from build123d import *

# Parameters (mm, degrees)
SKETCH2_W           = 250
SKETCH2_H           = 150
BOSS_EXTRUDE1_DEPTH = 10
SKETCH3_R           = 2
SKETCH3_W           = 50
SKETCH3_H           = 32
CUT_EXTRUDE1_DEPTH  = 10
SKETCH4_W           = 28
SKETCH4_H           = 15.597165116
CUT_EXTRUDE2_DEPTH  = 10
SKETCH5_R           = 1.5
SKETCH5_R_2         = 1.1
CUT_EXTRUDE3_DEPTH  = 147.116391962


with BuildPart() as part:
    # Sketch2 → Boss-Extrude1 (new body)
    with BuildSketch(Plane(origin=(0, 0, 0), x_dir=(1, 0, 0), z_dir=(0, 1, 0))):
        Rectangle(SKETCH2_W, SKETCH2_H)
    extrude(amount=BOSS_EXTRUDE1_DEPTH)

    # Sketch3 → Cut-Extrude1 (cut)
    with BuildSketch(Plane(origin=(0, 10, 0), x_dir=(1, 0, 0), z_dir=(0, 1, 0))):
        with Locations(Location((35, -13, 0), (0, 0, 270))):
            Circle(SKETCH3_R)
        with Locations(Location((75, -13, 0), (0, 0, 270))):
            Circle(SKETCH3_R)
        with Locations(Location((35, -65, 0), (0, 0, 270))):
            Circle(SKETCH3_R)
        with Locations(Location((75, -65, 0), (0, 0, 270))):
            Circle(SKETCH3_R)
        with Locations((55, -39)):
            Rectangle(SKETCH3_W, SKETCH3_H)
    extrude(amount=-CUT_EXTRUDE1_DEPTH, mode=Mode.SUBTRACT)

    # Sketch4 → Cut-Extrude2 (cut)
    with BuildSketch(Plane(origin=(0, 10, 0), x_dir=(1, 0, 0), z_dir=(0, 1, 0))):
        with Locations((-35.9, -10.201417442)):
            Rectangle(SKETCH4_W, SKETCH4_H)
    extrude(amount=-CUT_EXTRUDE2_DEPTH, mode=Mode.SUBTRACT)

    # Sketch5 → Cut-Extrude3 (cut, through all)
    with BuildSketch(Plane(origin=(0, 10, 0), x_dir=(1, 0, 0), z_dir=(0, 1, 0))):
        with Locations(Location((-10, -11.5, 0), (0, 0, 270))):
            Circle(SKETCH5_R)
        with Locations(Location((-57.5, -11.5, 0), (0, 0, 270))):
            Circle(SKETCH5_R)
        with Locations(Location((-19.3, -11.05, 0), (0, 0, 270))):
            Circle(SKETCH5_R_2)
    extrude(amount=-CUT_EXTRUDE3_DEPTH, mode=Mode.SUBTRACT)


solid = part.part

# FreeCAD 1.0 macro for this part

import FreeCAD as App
import Part
import Sketcher

V = App.Vector


def add_polygon(sketch, points):
    """Adds a closed chain of lines whose ends are joined by coincident constraints."""
    first, n = sketch.GeometryCount, len(points)
    for a, b in zip(points, points[1:] + points[:1]):
        sketch.addGeometry(Part.LineSegment(App.Vector(*a, 0), App.Vector(*b, 0)), False)
    for i in range(n):
        sketch.addConstraint(Sketcher.Constraint("Coincident", first + i, 2, first + (i + 1) % n, 1))

doc = App.newDocument("Part")
params = doc.addObject("Spreadsheet::Sheet", "Params")
for row, (alias, value) in enumerate([
    ("sketch1_width", "250 mm"),
    ("sketch1_height", "150 mm"),
    ("pad1_length", "10 mm"),
    ("sketch2_diameter", "4 mm"),
    ("sketch2_width", "50 mm"),
    ("sketch2_height", "32 mm"),
    ("pocket1_length", "10 mm"),
    ("sketch3_width", "28 mm"),
    ("pocket2_length", "10 mm"),
    ("sketch4_diameter", "3 mm"),
    ("sketch4_diameter2", "2.2 mm"),
], start=1):
    params.set(f"A{row}", alias)
    params.set(f"B{row}", "=" + value)
    params.setAlias(f"B{row}", alias)

body = doc.addObject("PartDesign::Body", "Body")

# Sketch on XZ plane
sketch1 = doc.addObject("Sketcher::SketchObject", "Sketch")
body.addObject(sketch1)
sketch1.AttachmentSupport = (doc.XZ_Plane, [""])
sketch1.MapMode = "FlatFace"
add_polygon(sketch1, [(-125, -75), (-125, 75), (125, 75), (125, -75)])  # lines 0-3
sketch1.addConstraint(Sketcher.Constraint("Vertical", 0))
sketch1.addConstraint(Sketcher.Constraint("Horizontal", 1))
sketch1.addConstraint(Sketcher.Constraint("Vertical", 2))
sketch1.addConstraint(Sketcher.Constraint("Horizontal", 3))
sketch1.addConstraint(Sketcher.Constraint("Symmetric", 0, 2, 2, 2, -1, 1))
sketch1.addConstraint(Sketcher.Constraint("DistanceX", 1, 1, 1, 2, 250.0))
sketch1.addConstraint(Sketcher.Constraint("DistanceY", 0, 1, 0, 2, 150.0))
sketch1.setExpression("Constraints[9]", "Params.sketch1_width")
sketch1.setExpression("Constraints[10]", "Params.sketch1_height")
pad1 = doc.addObject("PartDesign::Pad", "Pad")
body.addObject(pad1)
pad1.Profile = sketch1
pad1.setExpression("Length", "Params.pad1_length")
pad1.Reversed = True

# Sketch on XZ plane
sketch2 = doc.addObject("Sketcher::SketchObject", "Sketch001")
body.addObject(sketch2)
sketch2.AttachmentSupport = (doc.XZ_Plane, [""])
sketch2.MapMode = "FlatFace"
sketch2.AttachmentOffset = App.Placement(V(0, 0, -10), App.Rotation())
sketch2.addGeometry(Part.Circle(V(35, 13, 0), V(0, 0, 1), 2), False)  # 0
sketch2.addGeometry(Part.Circle(V(75, 13, 0), V(0, 0, 1), 2), False)  # 1
sketch2.addGeometry(Part.Circle(V(35, 65, 0), V(0, 0, 1), 2), False)  # 2
sketch2.addGeometry(Part.Circle(V(75, 65, 0), V(0, 0, 1), 2), False)  # 3
add_polygon(sketch2, [(30, 23), (30, 55), (80, 55), (80, 23)])  # lines 4-7
sketch2.addConstraint(Sketcher.Constraint("Vertical", 4))
sketch2.addConstraint(Sketcher.Constraint("Horizontal", 5))
sketch2.addConstraint(Sketcher.Constraint("Vertical", 6))
sketch2.addConstraint(Sketcher.Constraint("Horizontal", 7))
sketch2.addConstraint(Sketcher.Constraint("Equal", 0, 1))
sketch2.addConstraint(Sketcher.Constraint("Equal", 1, 2))
sketch2.addConstraint(Sketcher.Constraint("Equal", 2, 3))
sketch2.addConstraint(Sketcher.Constraint("Horizontal", 0, 3, 1, 3))
sketch2.addConstraint(Sketcher.Constraint("Horizontal", 2, 3, 3, 3))
sketch2.addConstraint(Sketcher.Constraint("Vertical", 0, 3, 2, 3))
sketch2.addConstraint(Sketcher.Constraint("Vertical", 1, 3, 3, 3))
sketch2.addConstraint(Sketcher.Constraint("Diameter", 0, 4.0))
sketch2.addConstraint(Sketcher.Constraint("DistanceX", 5, 1, 5, 2, 50.0))
sketch2.addConstraint(Sketcher.Constraint("DistanceY", 4, 1, 4, 2, 32.0))
sketch2.addConstraint(Sketcher.Constraint("DistanceX", -1, 1, 0, 3, 35.0))
sketch2.addConstraint(Sketcher.Constraint("DistanceY", -1, 1, 0, 3, 13.0))
sketch2.addConstraint(Sketcher.Constraint("DistanceX", -1, 1, 1, 3, 75.0))
sketch2.addConstraint(Sketcher.Constraint("DistanceY", -1, 1, 2, 3, 65.0))
sketch2.addConstraint(Sketcher.Constraint("DistanceX", -1, 1, 4, 2, 30.0))
sketch2.addConstraint(Sketcher.Constraint("DistanceY", -1, 1, 4, 2, 55.0))
sketch2.setExpression("Constraints[15]", "Params.sketch2_diameter")
sketch2.setExpression("Constraints[16]", "Params.sketch2_width")
sketch2.setExpression("Constraints[17]", "Params.sketch2_height")
pocket1 = doc.addObject("PartDesign::Pocket", "Pocket")
body.addObject(pocket1)
pocket1.Profile = sketch2
pocket1.setExpression("Length", "Params.pocket1_length")
pocket1.Reversed = True

# Sketch on XZ plane
sketch3 = doc.addObject("Sketcher::SketchObject", "Sketch002")
body.addObject(sketch3)
sketch3.AttachmentSupport = (doc.XZ_Plane, [""])
sketch3.MapMode = "FlatFace"
sketch3.AttachmentOffset = App.Placement(V(0, 0, -10), App.Rotation())
add_polygon(sketch3, [(-50, 2), (-50, 18), (-22, 18), (-22, 2)])  # lines 0-3
sketch3.addConstraint(Sketcher.Constraint("Vertical", 0))
sketch3.addConstraint(Sketcher.Constraint("Horizontal", 1))
sketch3.addConstraint(Sketcher.Constraint("Vertical", 2))
sketch3.addConstraint(Sketcher.Constraint("Horizontal", 3))
sketch3.addConstraint(Sketcher.Constraint("DistanceX", 1, 1, 1, 2, 28.0))
sketch3.addConstraint(Sketcher.Constraint("DistanceY", -1, 1, 0, 2, 18.0))
sketch3.addConstraint(Sketcher.Constraint("DistanceX", 0, 2, -1, 1, 49.9))
sketch3.addConstraint(Sketcher.Constraint("DistanceY", 0, 1, 0, 2, 15.597165))
sketch3.setExpression("Constraints[8]", "Params.sketch3_width")
pocket2 = doc.addObject("PartDesign::Pocket", "Pocket001")
body.addObject(pocket2)
pocket2.Profile = sketch3
pocket2.setExpression("Length", "Params.pocket2_length")
pocket2.Reversed = True

# Sketch on XZ plane
sketch4 = doc.addObject("Sketcher::SketchObject", "Sketch003")
body.addObject(sketch4)
sketch4.AttachmentSupport = (doc.XZ_Plane, [""])
sketch4.MapMode = "FlatFace"
sketch4.AttachmentOffset = App.Placement(V(0, 0, -10), App.Rotation())
sketch4.addGeometry(Part.Circle(V(-10, 11.5, 0), V(0, 0, 1), 1.5), False)
sketch4.addGeometry(Part.Circle(V(-57.5, 11.5, 0), V(0, 0, 1), 1.5), False)
sketch4.addGeometry(Part.Circle(V(-19.3, 11.1, 0), V(0, 0, 1), 1.1), False)
sketch4.addConstraint(Sketcher.Constraint("Equal", 0, 1))
sketch4.addConstraint(Sketcher.Constraint("Horizontal", 0, 3, 1, 3))
sketch4.addConstraint(Sketcher.Constraint("Diameter", 0, 3.0))
sketch4.addConstraint(Sketcher.Constraint("Diameter", 2, 2.2))
sketch4.addConstraint(Sketcher.Constraint("DistanceX", 0, 3, -1, 1, 10.0))
sketch4.addConstraint(Sketcher.Constraint("DistanceY", -1, 1, 0, 3, 11.5))
sketch4.addConstraint(Sketcher.Constraint("DistanceX", 1, 3, -1, 1, 57.5))
sketch4.addConstraint(Sketcher.Constraint("DistanceX", 2, 3, -1, 1, 19.3))
sketch4.addConstraint(Sketcher.Constraint("DistanceY", -1, 1, 2, 3, 11.05))
sketch4.setExpression("Constraints[2]", "Params.sketch4_diameter")
sketch4.setExpression("Constraints[3]", "Params.sketch4_diameter2")
pocket3 = doc.addObject("PartDesign::Pocket", "Pocket002")
body.addObject(pocket3)
pocket3.Profile = sketch4
pocket3.Type = "ThroughAll"
pocket3.Reversed = True

doc.recompute()
